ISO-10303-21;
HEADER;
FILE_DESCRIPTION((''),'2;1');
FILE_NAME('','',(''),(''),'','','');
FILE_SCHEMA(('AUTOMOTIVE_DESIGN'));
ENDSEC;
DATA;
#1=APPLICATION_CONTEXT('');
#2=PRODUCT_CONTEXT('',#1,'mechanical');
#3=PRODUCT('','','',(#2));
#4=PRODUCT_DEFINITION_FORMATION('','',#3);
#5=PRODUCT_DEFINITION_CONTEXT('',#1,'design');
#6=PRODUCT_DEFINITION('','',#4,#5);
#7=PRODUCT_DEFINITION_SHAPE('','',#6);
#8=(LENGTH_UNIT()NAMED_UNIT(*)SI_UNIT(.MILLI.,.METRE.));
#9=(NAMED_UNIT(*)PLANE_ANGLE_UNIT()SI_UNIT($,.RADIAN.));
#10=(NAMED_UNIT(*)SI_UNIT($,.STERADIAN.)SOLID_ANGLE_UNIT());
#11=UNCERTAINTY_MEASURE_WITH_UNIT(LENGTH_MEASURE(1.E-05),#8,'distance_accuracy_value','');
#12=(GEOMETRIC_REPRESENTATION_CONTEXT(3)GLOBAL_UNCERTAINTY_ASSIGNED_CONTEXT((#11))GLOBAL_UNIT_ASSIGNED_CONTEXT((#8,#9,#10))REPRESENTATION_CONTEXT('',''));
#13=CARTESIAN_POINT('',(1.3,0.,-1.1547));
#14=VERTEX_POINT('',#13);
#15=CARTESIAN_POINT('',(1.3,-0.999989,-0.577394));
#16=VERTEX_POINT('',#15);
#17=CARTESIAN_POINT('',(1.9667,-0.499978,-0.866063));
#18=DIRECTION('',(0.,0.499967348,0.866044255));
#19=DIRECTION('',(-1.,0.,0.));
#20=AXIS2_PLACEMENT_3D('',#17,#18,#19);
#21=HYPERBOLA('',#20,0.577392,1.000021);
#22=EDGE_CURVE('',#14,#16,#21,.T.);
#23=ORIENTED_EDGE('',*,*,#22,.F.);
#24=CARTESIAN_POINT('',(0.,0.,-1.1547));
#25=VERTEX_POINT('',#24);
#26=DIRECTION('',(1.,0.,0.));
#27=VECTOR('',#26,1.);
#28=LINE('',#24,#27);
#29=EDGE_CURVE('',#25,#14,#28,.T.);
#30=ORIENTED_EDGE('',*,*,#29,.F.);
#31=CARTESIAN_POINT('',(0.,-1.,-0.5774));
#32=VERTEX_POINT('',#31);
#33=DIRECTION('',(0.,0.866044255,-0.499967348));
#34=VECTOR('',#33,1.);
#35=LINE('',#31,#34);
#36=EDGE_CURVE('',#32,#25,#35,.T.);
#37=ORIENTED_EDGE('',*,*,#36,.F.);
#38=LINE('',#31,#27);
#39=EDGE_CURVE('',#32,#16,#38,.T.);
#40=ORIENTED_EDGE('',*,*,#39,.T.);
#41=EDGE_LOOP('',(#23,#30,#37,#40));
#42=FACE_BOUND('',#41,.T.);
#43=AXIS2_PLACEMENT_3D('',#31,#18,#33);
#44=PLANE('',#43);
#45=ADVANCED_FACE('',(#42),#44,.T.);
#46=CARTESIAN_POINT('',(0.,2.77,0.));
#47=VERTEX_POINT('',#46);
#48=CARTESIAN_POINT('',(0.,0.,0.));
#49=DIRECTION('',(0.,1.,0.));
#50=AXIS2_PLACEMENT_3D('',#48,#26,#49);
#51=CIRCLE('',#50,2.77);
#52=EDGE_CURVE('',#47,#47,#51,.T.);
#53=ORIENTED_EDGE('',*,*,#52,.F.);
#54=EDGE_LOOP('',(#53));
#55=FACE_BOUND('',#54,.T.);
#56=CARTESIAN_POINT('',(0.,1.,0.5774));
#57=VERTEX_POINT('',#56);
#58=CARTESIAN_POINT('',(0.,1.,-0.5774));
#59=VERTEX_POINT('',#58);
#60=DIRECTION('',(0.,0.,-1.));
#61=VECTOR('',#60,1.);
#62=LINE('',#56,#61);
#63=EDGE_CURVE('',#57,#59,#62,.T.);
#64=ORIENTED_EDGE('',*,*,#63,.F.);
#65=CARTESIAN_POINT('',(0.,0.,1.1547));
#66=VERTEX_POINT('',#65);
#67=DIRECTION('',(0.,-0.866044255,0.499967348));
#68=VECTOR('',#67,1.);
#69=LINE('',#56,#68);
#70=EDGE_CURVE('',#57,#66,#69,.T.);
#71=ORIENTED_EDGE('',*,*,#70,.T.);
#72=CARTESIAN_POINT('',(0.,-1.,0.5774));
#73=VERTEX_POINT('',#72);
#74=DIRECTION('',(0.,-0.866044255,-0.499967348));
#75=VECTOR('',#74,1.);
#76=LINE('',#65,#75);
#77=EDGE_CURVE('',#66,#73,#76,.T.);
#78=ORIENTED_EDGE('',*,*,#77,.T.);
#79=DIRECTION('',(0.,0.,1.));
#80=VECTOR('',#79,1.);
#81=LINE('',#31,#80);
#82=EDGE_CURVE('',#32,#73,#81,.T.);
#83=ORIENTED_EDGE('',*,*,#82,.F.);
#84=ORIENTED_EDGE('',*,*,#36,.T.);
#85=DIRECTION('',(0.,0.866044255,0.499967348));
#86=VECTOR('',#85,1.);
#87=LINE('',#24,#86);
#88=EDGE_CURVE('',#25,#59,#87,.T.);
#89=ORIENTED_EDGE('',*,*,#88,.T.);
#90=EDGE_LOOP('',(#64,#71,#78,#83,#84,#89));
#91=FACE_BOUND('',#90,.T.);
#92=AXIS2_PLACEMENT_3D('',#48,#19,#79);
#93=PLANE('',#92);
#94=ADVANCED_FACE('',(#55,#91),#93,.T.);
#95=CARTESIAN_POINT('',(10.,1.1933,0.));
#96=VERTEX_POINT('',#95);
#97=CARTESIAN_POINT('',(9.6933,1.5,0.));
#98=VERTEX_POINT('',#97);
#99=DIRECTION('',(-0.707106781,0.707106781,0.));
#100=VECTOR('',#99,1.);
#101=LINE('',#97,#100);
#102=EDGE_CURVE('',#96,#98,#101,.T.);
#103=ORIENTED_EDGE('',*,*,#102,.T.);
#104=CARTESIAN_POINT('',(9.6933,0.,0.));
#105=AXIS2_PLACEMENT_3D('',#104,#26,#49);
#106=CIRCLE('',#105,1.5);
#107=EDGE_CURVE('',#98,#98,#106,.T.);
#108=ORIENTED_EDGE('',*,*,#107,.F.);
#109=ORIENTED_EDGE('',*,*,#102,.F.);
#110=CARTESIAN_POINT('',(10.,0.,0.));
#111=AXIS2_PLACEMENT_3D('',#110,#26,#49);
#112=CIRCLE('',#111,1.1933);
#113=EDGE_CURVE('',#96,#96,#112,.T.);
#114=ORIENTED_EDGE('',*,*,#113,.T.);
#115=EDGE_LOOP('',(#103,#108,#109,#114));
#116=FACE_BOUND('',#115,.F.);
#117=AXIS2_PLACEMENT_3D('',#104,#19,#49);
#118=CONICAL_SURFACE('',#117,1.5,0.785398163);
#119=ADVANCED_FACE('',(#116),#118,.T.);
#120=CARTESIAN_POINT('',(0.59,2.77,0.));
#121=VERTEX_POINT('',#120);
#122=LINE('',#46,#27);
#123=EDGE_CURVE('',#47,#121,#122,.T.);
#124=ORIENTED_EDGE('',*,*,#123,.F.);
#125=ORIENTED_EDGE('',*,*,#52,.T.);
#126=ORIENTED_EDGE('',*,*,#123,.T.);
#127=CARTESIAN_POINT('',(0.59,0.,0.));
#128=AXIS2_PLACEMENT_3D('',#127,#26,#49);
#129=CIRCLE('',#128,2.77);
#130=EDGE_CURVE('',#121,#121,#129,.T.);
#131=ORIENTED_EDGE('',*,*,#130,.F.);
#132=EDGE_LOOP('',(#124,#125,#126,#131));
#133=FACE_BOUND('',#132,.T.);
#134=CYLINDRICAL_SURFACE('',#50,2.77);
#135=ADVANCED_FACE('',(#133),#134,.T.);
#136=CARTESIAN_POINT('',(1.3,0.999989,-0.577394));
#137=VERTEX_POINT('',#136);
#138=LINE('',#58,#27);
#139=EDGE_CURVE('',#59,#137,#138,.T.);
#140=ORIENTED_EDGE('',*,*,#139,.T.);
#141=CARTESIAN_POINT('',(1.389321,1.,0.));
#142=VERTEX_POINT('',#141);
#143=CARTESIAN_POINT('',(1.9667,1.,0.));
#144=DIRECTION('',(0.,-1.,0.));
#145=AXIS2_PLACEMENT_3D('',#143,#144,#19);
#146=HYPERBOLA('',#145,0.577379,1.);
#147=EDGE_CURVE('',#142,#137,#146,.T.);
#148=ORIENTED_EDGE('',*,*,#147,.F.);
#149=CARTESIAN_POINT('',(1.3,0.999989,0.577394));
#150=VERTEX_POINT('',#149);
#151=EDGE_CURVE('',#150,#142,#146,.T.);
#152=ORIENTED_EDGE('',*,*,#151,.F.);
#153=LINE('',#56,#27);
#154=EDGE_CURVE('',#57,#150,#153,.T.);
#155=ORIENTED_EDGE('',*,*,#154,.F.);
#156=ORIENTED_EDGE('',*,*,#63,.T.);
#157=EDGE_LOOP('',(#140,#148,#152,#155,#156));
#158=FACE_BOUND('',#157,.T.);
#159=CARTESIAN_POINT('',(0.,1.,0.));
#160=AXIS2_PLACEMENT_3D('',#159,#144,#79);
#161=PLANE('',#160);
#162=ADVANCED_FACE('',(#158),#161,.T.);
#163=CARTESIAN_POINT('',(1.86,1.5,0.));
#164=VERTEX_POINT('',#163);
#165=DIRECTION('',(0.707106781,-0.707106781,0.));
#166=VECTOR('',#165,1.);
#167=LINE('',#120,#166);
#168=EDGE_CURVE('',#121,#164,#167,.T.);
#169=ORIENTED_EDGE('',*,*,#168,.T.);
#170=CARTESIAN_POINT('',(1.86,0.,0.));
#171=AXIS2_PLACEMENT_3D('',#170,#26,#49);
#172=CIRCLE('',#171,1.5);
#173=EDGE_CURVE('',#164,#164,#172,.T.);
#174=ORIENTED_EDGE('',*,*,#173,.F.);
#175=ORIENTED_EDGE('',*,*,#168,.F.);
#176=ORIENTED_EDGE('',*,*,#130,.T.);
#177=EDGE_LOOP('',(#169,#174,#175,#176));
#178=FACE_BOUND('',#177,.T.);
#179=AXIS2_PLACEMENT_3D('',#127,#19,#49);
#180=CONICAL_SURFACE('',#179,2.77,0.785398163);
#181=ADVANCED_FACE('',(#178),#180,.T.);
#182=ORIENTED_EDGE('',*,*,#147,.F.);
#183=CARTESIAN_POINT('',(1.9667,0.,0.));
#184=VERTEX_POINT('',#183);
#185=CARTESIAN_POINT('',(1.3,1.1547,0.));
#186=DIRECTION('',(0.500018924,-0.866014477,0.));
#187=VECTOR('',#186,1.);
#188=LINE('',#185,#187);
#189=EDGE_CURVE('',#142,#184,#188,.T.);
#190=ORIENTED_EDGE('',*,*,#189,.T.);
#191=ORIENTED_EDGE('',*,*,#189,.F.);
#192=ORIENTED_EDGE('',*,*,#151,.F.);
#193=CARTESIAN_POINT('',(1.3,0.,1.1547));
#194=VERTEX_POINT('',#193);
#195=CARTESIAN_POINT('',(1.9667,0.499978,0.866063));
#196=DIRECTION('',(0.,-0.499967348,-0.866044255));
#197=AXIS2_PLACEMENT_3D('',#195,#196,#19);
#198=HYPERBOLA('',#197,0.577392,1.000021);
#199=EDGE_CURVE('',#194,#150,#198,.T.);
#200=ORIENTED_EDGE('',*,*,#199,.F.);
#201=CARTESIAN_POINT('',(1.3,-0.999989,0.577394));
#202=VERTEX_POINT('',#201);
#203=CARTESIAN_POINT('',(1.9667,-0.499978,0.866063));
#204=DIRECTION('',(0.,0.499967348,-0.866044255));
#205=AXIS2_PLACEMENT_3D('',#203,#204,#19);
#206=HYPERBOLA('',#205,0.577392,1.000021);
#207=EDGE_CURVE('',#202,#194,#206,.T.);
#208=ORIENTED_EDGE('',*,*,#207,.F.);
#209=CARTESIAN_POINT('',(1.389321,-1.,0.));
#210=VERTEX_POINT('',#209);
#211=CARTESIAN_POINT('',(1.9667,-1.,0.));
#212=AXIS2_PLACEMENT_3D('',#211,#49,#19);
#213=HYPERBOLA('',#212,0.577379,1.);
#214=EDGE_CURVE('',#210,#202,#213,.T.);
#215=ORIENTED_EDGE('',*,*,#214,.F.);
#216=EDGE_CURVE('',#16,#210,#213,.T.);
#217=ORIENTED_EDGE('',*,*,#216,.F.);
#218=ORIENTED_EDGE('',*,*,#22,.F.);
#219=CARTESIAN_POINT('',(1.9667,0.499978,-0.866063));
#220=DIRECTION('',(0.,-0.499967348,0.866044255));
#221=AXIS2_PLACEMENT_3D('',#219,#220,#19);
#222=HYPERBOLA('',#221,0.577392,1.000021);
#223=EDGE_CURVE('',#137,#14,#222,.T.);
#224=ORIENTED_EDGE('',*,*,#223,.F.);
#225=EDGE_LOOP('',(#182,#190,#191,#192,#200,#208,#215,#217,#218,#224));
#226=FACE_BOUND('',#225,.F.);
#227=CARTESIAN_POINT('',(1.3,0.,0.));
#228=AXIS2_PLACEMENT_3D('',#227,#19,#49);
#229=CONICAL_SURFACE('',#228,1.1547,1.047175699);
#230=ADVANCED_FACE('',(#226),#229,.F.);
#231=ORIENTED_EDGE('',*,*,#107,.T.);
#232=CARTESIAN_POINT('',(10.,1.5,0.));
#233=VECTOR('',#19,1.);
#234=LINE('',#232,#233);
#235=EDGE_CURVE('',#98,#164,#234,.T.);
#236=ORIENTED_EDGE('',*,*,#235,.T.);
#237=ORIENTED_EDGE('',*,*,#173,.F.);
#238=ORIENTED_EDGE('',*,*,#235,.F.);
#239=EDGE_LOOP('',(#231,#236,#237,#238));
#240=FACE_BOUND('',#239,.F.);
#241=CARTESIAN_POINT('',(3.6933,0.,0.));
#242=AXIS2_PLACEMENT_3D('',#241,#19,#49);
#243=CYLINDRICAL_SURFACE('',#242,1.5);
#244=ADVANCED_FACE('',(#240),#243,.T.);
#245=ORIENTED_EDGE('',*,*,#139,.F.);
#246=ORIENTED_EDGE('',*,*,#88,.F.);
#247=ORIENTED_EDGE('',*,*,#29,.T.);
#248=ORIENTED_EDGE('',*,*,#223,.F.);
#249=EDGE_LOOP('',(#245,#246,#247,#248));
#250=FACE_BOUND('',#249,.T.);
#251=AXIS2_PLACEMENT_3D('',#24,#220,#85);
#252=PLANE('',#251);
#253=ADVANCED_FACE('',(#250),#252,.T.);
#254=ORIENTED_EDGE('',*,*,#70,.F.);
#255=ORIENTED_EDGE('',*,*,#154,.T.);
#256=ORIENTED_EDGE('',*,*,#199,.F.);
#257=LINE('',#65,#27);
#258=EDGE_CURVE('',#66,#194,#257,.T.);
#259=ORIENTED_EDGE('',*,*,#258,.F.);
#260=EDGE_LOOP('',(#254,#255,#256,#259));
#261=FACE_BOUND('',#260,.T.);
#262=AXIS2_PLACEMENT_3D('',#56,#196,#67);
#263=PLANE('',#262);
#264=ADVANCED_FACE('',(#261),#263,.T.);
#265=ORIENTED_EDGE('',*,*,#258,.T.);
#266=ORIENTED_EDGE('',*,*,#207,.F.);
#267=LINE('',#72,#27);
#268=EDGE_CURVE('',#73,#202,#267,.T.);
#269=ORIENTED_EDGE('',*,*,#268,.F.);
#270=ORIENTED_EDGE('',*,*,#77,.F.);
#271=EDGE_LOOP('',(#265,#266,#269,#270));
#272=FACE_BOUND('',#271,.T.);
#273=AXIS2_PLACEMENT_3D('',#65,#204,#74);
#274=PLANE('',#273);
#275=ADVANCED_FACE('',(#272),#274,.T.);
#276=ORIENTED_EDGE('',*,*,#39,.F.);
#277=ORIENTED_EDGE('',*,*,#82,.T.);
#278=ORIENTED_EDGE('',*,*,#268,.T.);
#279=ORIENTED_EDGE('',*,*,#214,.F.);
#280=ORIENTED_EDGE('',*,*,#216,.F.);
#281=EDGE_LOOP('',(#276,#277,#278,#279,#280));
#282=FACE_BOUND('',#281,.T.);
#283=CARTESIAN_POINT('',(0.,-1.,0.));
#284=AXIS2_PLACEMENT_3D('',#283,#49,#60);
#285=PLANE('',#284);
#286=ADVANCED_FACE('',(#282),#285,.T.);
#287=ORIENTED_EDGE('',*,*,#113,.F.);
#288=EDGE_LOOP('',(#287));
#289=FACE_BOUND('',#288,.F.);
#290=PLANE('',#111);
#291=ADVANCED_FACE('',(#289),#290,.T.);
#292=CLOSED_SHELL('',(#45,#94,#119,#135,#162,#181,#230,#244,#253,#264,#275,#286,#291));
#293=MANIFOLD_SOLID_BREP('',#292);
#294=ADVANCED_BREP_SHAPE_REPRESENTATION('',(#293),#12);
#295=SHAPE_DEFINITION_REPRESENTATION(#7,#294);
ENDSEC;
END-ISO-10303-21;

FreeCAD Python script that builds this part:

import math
import FreeCAD as App
import Part
import Sketcher
from FreeCAD import Vector
Q = App.Units.Quantity


def edges_at(feature, points):
    """Names of the edges that pass closest to the given points."""
    edges = feature.Shape.Edges
    near = lambda p: min(range(len(edges)), key=lambda i: edges[i].distToShape(Part.Vertex(*p))[0])
    return sorted({f"Edge{near(p) + 1}" for p in points})


def add_polygon(sketch, points):
    """Adds a closed chain of lines whose ends are joined by coincident constraints."""
    first, n = sketch.GeometryCount, len(points)
    for a, b in zip(points, points[1:] + points[:1]):
        sketch.addGeometry(Part.LineSegment(App.Vector(*a, 0), App.Vector(*b, 0)), False)
    for i in range(n):
        sketch.addConstraint(Sketcher.Constraint("Coincident", first + i, 2, first + (i + 1) % n, 1))

doc = App.newDocument("Part")
body = doc.addObject("PartDesign::Body", "Body")

# Sketch on XY plane
sketch1 = body.newObject("Sketcher::SketchObject", "Sketch")
sketch1.AttachmentSupport = (doc.getObject("XY_Plane"), [""])
sketch1.MapMode = "FlatFace"
add_polygon(sketch1, [(2, 0), (10, 0), (10, 1.5), (1.9, 1.5), (0.6, 2.8), (0, 2.8), (0, 1.2), (1.3, 1.2)])  # lines 0-7
sketch1.addConstraint(Sketcher.Constraint("Horizontal", 0))
sketch1.addConstraint(Sketcher.Constraint("Vertical", 1))
sketch1.addConstraint(Sketcher.Constraint("Horizontal", 2))
sketch1.addConstraint(Sketcher.Constraint("Horizontal", 4))
sketch1.addConstraint(Sketcher.Constraint("Vertical", 5))
sketch1.addConstraint(Sketcher.Constraint("Horizontal", 6))
sketch1.addConstraint(Sketcher.Constraint("PointOnObject", 0, 2, -1))
sketch1.addConstraint(Sketcher.Constraint("PointOnObject", 4, 2, -2))
sketch1.addConstraint(Sketcher.Constraint("DistanceX", 6, 1, 6, 2, 1.3))
sketch1.addConstraint(Sketcher.Constraint("DistanceX", -1, 1, 0, 2, 10.0))
sketch1.addConstraint(Sketcher.Constraint("DistanceX", -1, 1, 2, 2, 1.86))
sketch1.addConstraint(Sketcher.Constraint("Angle", 3, Q("135 deg")))
sketch1.addConstraint(Sketcher.Constraint("DistanceY", 1, 1, 1, 2, 1.5))
sketch1.addConstraint(Sketcher.Constraint("DistanceX", 4, 2, 4, 1, 0.59))
sketch1.addConstraint(Sketcher.Constraint("DistanceX", 0, 1, 0, 2, 8.0333))
sketch1.addConstraint(Sketcher.Constraint("DistanceY", 5, 2, 5, 1, 1.6153))
revolution = body.newObject("PartDesign::Revolution", "Revolution")
revolution.Profile = sketch1
revolution.ReferenceAxis = (sketch1, ["H_Axis"])
revolution.Angle = 360

# Sketch on YZ plane
sketch2 = body.newObject("Sketcher::SketchObject", "Sketch001")
sketch2.AttachmentSupport = (doc.getObject("YZ_Plane"), [""])
sketch2.MapMode = "FlatFace"
sketch2.addGeometry(Part.LineSegment(Vector(1, 0.6, 0), Vector(0, 1.2, 0)), False)
sketch2.addGeometry(Part.ArcOfCircle(Part.Circle(Vector(0, 0, 0), Vector(0, 0, 1), 1.2), math.radians(30), math.radians(90)), False)
sketch2.addGeometry(Part.ArcOfCircle(Part.Circle(Vector(0, 0, 0), Vector(0, 0, 1), 1.2), math.radians(90), math.radians(150)), False)
sketch2.addGeometry(Part.LineSegment(Vector(0, 1.2, 0), Vector(-1, 0.6, 0)), False)
sketch2.addGeometry(Part.ArcOfCircle(Part.Circle(Vector(0, 0, 0), Vector(0, 0, 1), 1.2), math.radians(-30), math.radians(30)), False)
sketch2.addGeometry(Part.LineSegment(Vector(1, 0.6, 0), Vector(1, -0.6, 0)), False)
sketch2.addGeometry(Part.LineSegment(Vector(-1, 0.6, 0), Vector(-1, -0.6, 0)), False)
sketch2.addGeometry(Part.ArcOfCircle(Part.Circle(Vector(0, 0, 0), Vector(0, 0, 1), 1.2), math.radians(150), math.radians(210)), False)
sketch2.addGeometry(Part.LineSegment(Vector(-1, -0.6, 0), Vector(0, -1.2, 0)), False)
sketch2.addGeometry(Part.ArcOfCircle(Part.Circle(Vector(0, 0, 0), Vector(0, 0, 1), 1.2), math.radians(-150), math.radians(-90)), False)
sketch2.addGeometry(Part.ArcOfCircle(Part.Circle(Vector(0, 0, 0), Vector(0, 0, 1), 1.2), math.radians(-90), math.radians(-30)), False)
sketch2.addGeometry(Part.LineSegment(Vector(0, -1.2, 0), Vector(1, -0.6, 0)), False)
sketch2.addConstraint(Sketcher.Constraint("Coincident", 0, 1, 1, 1))
sketch2.addConstraint(Sketcher.Constraint("Coincident", 1, 2, 0, 2))
sketch2.addConstraint(Sketcher.Constraint("Coincident", 2, 1, 3, 1))
sketch2.addConstraint(Sketcher.Constraint("Coincident", 3, 2, 2, 2))
sketch2.addConstraint(Sketcher.Constraint("Coincident", 4, 1, 5, 2))
sketch2.addConstraint(Sketcher.Constraint("Coincident", 5, 1, 4, 2))
sketch2.addConstraint(Sketcher.Constraint("Coincident", 6, 1, 7, 1))
sketch2.addConstraint(Sketcher.Constraint("Coincident", 7, 2, 6, 2))
sketch2.addConstraint(Sketcher.Constraint("Coincident", 8, 1, 9, 1))
sketch2.addConstraint(Sketcher.Constraint("Coincident", 9, 2, 8, 2))
sketch2.addConstraint(Sketcher.Constraint("Coincident", 10, 1, 11, 1))
sketch2.addConstraint(Sketcher.Constraint("Coincident", 11, 2, 10, 2))
sketch2.addConstraint(Sketcher.Constraint("Vertical", 5))
sketch2.addConstraint(Sketcher.Constraint("Vertical", 6))
sketch2.addConstraint(Sketcher.Constraint("Coincident", 1, 3, -1, 1))
sketch2.addConstraint(Sketcher.Constraint("Coincident", 2, 3, -1, 1))
sketch2.addConstraint(Sketcher.Constraint("Coincident", 4, 3, -1, 1))
sketch2.addConstraint(Sketcher.Constraint("Coincident", 7, 3, -1, 1))
sketch2.addConstraint(Sketcher.Constraint("Coincident", 9, 3, -1, 1))
sketch2.addConstraint(Sketcher.Constraint("Coincident", 10, 3, -1, 1))
sketch2.addConstraint(Sketcher.Constraint("Coincident", 2, 1, 1, 2))
sketch2.addConstraint(Sketcher.Constraint("Coincident", 5, 1, 0, 1))
sketch2.addConstraint(Sketcher.Constraint("Coincident", 6, 1, 3, 2))
sketch2.addConstraint(Sketcher.Constraint("Coincident", 8, 1, 7, 2))
sketch2.addConstraint(Sketcher.Constraint("Coincident", 10, 1, 9, 2))
sketch2.addConstraint(Sketcher.Constraint("PointOnObject", 1, 2, -2))
sketch2.addConstraint(Sketcher.Constraint("PointOnObject", 9, 2, -2))
sketch2.addConstraint(Sketcher.Constraint("Parallel", 0, 8))
sketch2.addConstraint(Sketcher.Constraint("Parallel", 3, 11))
sketch2.addConstraint(Sketcher.Constraint("DistanceX", -1, 1, 0, 1, 1.0))
sketch2.addConstraint(Sketcher.Constraint("Radius", 1, 1.1547))
pad1 = body.newObject("PartDesign::Pad", "Pad")
pad1.Profile = sketch2
pad1.Type = "UpToFirst"
doc.recompute()

chamfer = body.newObject("PartDesign::Chamfer", "Chamfer")
chamfer.Base = (pad1, edges_at(pad1, [(10, -1.5, 0)]))
chamfer.ChamferType = "Two distances"
chamfer.Size = 0.3067
chamfer.Size2 = 0.3067

doc.recompute()
